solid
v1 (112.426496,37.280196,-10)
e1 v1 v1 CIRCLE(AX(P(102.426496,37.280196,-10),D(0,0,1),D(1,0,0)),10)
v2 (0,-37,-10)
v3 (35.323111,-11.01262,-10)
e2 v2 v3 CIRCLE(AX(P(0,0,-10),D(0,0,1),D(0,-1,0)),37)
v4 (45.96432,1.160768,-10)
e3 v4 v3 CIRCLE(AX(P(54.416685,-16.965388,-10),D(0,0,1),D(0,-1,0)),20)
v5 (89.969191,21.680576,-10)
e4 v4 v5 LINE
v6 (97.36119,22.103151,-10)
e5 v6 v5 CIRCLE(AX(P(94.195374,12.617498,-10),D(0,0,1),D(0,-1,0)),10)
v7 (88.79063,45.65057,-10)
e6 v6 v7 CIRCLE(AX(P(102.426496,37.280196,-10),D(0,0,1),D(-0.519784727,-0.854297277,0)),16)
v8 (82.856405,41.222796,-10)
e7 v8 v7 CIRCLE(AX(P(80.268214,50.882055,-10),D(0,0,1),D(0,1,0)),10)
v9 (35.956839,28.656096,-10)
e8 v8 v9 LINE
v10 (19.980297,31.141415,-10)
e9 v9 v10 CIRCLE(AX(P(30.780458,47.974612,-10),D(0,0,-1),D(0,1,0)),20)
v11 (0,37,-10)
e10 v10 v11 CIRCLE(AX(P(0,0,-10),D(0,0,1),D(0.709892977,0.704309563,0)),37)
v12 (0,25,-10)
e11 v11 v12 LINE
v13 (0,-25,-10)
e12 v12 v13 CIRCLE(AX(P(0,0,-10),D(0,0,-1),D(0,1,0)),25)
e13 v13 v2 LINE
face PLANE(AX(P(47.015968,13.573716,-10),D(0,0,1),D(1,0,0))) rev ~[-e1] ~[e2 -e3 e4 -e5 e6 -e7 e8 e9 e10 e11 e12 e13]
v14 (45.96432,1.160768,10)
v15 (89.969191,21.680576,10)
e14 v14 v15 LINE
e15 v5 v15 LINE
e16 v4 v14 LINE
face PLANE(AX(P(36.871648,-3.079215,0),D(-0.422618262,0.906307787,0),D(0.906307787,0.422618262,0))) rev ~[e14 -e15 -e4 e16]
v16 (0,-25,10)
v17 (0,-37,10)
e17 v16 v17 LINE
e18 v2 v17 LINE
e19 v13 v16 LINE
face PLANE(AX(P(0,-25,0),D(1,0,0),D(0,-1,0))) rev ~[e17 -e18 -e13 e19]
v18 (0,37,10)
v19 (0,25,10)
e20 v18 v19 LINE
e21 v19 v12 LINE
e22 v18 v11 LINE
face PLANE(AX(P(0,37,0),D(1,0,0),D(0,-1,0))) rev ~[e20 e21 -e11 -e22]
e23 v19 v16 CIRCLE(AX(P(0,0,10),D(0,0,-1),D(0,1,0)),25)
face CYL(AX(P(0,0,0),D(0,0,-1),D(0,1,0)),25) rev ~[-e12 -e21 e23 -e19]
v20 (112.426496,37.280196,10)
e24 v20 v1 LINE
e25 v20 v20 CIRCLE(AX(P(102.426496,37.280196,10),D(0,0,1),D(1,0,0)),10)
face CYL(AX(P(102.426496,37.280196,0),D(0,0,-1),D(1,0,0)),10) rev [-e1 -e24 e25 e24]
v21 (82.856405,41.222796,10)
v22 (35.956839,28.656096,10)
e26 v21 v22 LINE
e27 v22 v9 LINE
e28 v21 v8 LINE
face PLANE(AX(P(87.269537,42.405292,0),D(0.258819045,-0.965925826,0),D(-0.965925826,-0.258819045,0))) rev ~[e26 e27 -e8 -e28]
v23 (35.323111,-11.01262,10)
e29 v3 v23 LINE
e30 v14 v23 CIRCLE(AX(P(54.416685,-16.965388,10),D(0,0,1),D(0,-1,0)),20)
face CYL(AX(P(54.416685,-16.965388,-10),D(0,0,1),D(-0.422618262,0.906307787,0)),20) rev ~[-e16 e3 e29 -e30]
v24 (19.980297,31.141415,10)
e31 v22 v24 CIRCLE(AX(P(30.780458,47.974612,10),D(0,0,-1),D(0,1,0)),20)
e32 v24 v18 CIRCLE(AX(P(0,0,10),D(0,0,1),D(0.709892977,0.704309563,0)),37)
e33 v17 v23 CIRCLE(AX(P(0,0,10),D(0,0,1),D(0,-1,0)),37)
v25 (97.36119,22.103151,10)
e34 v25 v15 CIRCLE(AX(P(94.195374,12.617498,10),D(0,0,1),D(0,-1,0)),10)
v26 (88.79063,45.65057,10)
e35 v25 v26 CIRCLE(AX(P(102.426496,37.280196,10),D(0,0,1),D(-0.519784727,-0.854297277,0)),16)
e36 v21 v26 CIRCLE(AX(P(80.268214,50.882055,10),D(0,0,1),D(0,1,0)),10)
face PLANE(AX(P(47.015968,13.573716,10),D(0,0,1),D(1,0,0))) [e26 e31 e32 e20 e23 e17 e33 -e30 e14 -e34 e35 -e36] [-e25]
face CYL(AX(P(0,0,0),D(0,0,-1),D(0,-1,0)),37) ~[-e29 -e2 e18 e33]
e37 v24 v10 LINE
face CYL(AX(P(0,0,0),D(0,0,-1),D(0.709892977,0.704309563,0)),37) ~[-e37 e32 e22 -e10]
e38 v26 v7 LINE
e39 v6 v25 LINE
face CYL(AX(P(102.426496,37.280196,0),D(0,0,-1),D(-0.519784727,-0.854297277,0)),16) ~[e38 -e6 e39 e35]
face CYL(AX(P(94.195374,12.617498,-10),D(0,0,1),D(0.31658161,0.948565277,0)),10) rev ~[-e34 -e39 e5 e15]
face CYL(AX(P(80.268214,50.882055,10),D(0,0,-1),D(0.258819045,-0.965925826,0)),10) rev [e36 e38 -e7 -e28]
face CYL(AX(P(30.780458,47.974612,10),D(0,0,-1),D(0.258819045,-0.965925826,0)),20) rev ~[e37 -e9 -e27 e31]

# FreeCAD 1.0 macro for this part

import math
import FreeCAD as App
import Part
import Sketcher

V = App.Vector
Q = App.Units.Quantity


def edges_at(feature, points):
    """Names of the edges that pass closest to the given points."""
    edges = feature.Shape.Edges
    near = lambda p: min(range(len(edges)), key=lambda i: edges[i].distToShape(Part.Vertex(*p))[0])
    return sorted({f"Edge{near(p) + 1}" for p in points})

doc = App.newDocument("Part")
body = doc.addObject("PartDesign::Body", "Body")

sketch1 = body.newObject("Sketcher::SketchObject", "Sketch")
sketch1.AttachmentSupport = (doc.getObject("XY_Plane"), [""])
sketch1.MapMode = "FlatFace"
sketch1.addGeometry([
    Part.ArcOfCircle(Part.Circle(V(0, 0, 0), V(0, 0, 1), 25), math.radians(-90), math.radians(90)),
    Part.LineSegment(V(0, -25, 0), V(0, -37, 0)),
    Part.ArcOfCircle(Part.Circle(V(0, 0, 0), V(0, 0, 1), 37), math.radians(-90), math.radians(-4.773792)),
    Part.LineSegment(V(36.871648, -3.079215, 0), V(94.10994, 23.611439, 0)),
    Part.ArcOfCircle(Part.Circle(V(102.426496, 37.280196, 0), V(0, 0, 1), 16), math.radians(-121.317813), math.radians(161.317813)),
    Part.LineSegment(V(87.269537, 42.405292, 0), V(26.26604, 26.059454, 0)),
    Part.ArcOfCircle(Part.Circle(V(0, 0, 0), V(0, 0, 1), 37), math.radians(44.773792), math.radians(90)),
    Part.LineSegment(V(0, 37, 0), V(0, 25, 0)),
    Part.Circle(V(102.426496, 37.280196, 0), V(0, 0, 1), 10),
], False)
sketch1.addConstraint([
    Sketcher.Constraint("Coincident", 0, 1, 1, 1),
    Sketcher.Constraint("Coincident", 1, 2, 2, 1),
    Sketcher.Constraint("Coincident", 2, 2, 3, 1),
    Sketcher.Constraint("Coincident", 3, 2, 4, 1),
    Sketcher.Constraint("Coincident", 4, 2, 5, 1),
    Sketcher.Constraint("Coincident", 5, 2, 6, 1),
    Sketcher.Constraint("Coincident", 6, 2, 7, 1),
    Sketcher.Constraint("Coincident", 7, 2, 0, 2),
    Sketcher.Constraint("Vertical", 1),
    Sketcher.Constraint("Vertical", 7),
    Sketcher.Constraint("Coincident", 0, 3, -1, 1),
    Sketcher.Constraint("Coincident", 2, 3, -1, 1),
    Sketcher.Constraint("Coincident", 6, 3, -1, 1),
    Sketcher.Constraint("Coincident", 8, 3, 4, 3),
    Sketcher.Constraint("Equal", 2, 6),
    Sketcher.Constraint("PointOnObject", 0, 1, -2),
    Sketcher.Constraint("PointOnObject", 6, 2, -2),
    Sketcher.Constraint("Equal", 3, 5),
    Sketcher.Constraint("Diameter", 8, Q("20 mm")),
    Sketcher.Constraint("Radius", 0, Q("25 mm")),
    Sketcher.Constraint("Radius", 2, Q("37 mm")),
    Sketcher.Constraint("Radius", 4, Q("16 mm")),
    Sketcher.Constraint("Angle", 3, Q("25 deg")),
    Sketcher.Constraint("Angle", 5, Q("-165 deg")),
    Sketcher.Constraint("DistanceX", -1, 1, 2, 2, Q("36.871648 mm")),
    Sketcher.Constraint("DistanceX", -1, 1, 3, 2, Q("94.10994 mm")),
    Sketcher.Constraint("DistanceY", -1, 1, 4, 2, Q("42.405292 mm")),
])
pad1 = body.newObject("PartDesign::Pad", "Pad")
pad1.Profile = sketch1
pad1.Type = "TwoLengths"
pad1.Length = 10
pad1.Length2 = 10
pad1.Reversed = True
doc.recompute()

fillet = body.newObject("PartDesign::Fillet", "Fillet")
fillet.Base = (pad1, edges_at(pad1, [(26.266, 26.059, 0), (36.872, -3.079, 0)]))
fillet.Radius = 20
doc.recompute()

fillet2 = body.newObject("PartDesign::Fillet", "Fillet001")
fillet2.Base = (fillet, edges_at(fillet, [(87.27, 42.405, 0), (94.11, 23.611, 0)]))
fillet2.Radius = 10

doc.recompute()
